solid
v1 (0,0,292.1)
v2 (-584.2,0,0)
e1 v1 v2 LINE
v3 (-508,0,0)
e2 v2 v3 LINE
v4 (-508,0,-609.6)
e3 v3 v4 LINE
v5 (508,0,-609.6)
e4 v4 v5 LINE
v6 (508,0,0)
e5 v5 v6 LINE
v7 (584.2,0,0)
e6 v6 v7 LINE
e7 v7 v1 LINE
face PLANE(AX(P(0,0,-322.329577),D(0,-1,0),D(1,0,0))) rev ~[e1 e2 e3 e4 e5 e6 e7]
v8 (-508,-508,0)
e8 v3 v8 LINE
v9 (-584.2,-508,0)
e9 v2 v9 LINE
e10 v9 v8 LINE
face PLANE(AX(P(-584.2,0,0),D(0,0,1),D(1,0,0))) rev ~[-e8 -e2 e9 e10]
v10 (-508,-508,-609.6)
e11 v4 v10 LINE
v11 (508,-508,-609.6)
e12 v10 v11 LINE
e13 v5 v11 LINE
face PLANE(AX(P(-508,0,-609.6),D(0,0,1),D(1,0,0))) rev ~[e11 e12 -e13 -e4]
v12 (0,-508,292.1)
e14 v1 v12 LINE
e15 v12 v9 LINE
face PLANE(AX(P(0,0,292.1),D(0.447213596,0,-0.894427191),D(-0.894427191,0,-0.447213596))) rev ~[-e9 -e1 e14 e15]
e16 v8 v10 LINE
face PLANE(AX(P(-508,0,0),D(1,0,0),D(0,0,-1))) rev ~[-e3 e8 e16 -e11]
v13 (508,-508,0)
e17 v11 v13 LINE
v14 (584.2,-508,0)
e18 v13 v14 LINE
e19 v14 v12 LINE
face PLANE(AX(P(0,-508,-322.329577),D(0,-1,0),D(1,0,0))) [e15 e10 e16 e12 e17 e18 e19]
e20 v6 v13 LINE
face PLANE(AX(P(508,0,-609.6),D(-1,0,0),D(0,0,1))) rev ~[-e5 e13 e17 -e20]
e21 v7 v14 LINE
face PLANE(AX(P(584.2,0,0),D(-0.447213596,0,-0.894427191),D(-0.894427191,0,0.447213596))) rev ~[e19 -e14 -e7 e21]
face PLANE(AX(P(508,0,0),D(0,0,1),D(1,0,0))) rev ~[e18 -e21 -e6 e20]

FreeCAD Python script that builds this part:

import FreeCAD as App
import Part
import Sketcher
from FreeCAD import Vector
Q = App.Units.Quantity

doc = App.newDocument("Part")
body = doc.addObject("PartDesign::Body", "Body")

# Sketch on XZ plane
sketch1 = body.newObject("Sketcher::SketchObject", "Sketch")
sketch1.AttachmentSupport = (doc.getObject("XZ_Plane"), [""])
sketch1.MapMode = "FlatFace"
sketch1.addGeometry(Part.LineSegment(Vector(508, -610, 0), Vector(508, 0, 0)), False)
sketch1.addGeometry(Part.LineSegment(Vector(508, 0, 0), Vector(584, 0, 0)), False)
sketch1.addGeometry(Part.LineSegment(Vector(584, 0, 0), Vector(0, 292, 0)), False)
sketch1.addGeometry(Part.LineSegment(Vector(0, 292, 0), Vector(-584, 0, 0)), False)
sketch1.addGeometry(Part.LineSegment(Vector(-584, 0, 0), Vector(-508, 0, 0)), False)
sketch1.addGeometry(Part.LineSegment(Vector(-508, 0, 0), Vector(-508, -610, 0)), False)
sketch1.addGeometry(Part.LineSegment(Vector(-508, -610, 0), Vector(508, -610, 0)), False)
sketch1.addConstraint(Sketcher.Constraint("Coincident", 0, 2, 1, 1))
sketch1.addConstraint(Sketcher.Constraint("Coincident", 1, 2, 2, 1))
sketch1.addConstraint(Sketcher.Constraint("Coincident", 2, 2, 3, 1))
sketch1.addConstraint(Sketcher.Constraint("Coincident", 3, 2, 4, 1))
sketch1.addConstraint(Sketcher.Constraint("Coincident", 4, 2, 5, 1))
sketch1.addConstraint(Sketcher.Constraint("Coincident", 5, 2, 6, 1))
sketch1.addConstraint(Sketcher.Constraint("Coincident", 6, 2, 0, 1))
sketch1.addConstraint(Sketcher.Constraint("Vertical", 0))
sketch1.addConstraint(Sketcher.Constraint("Horizontal", 1))
sketch1.addConstraint(Sketcher.Constraint("Horizontal", 4))
sketch1.addConstraint(Sketcher.Constraint("Vertical", 5))
sketch1.addConstraint(Sketcher.Constraint("Horizontal", 6))
sketch1.addConstraint(Sketcher.Constraint("Symmetric", 1, 2, 3, 2, -1, 1))
sketch1.addConstraint(Sketcher.Constraint("Symmetric", 0, 2, 4, 2, -2))
sketch1.addConstraint(Sketcher.Constraint("PointOnObject", 2, 2, -2))
sketch1.addConstraint(Sketcher.Constraint("DistanceX", 1, 1, 1, 2, Q("3 in")))
sketch1.addConstraint(Sketcher.Constraint("DistanceX", 6, 1, 6, 2, Q("40 in")))
sketch1.addConstraint(Sketcher.Constraint("DistanceY", 0, 1, 0, 2, Q("24 in")))
sketch1.addConstraint(Sketcher.Constraint("DistanceY", -1, 1, 2, 2, Q("11.5 in")))
pad1 = body.newObject("PartDesign::Pad", "Pad")
pad1.Profile = sketch1
pad1.Length = Q("20 in")

doc.recompute()
